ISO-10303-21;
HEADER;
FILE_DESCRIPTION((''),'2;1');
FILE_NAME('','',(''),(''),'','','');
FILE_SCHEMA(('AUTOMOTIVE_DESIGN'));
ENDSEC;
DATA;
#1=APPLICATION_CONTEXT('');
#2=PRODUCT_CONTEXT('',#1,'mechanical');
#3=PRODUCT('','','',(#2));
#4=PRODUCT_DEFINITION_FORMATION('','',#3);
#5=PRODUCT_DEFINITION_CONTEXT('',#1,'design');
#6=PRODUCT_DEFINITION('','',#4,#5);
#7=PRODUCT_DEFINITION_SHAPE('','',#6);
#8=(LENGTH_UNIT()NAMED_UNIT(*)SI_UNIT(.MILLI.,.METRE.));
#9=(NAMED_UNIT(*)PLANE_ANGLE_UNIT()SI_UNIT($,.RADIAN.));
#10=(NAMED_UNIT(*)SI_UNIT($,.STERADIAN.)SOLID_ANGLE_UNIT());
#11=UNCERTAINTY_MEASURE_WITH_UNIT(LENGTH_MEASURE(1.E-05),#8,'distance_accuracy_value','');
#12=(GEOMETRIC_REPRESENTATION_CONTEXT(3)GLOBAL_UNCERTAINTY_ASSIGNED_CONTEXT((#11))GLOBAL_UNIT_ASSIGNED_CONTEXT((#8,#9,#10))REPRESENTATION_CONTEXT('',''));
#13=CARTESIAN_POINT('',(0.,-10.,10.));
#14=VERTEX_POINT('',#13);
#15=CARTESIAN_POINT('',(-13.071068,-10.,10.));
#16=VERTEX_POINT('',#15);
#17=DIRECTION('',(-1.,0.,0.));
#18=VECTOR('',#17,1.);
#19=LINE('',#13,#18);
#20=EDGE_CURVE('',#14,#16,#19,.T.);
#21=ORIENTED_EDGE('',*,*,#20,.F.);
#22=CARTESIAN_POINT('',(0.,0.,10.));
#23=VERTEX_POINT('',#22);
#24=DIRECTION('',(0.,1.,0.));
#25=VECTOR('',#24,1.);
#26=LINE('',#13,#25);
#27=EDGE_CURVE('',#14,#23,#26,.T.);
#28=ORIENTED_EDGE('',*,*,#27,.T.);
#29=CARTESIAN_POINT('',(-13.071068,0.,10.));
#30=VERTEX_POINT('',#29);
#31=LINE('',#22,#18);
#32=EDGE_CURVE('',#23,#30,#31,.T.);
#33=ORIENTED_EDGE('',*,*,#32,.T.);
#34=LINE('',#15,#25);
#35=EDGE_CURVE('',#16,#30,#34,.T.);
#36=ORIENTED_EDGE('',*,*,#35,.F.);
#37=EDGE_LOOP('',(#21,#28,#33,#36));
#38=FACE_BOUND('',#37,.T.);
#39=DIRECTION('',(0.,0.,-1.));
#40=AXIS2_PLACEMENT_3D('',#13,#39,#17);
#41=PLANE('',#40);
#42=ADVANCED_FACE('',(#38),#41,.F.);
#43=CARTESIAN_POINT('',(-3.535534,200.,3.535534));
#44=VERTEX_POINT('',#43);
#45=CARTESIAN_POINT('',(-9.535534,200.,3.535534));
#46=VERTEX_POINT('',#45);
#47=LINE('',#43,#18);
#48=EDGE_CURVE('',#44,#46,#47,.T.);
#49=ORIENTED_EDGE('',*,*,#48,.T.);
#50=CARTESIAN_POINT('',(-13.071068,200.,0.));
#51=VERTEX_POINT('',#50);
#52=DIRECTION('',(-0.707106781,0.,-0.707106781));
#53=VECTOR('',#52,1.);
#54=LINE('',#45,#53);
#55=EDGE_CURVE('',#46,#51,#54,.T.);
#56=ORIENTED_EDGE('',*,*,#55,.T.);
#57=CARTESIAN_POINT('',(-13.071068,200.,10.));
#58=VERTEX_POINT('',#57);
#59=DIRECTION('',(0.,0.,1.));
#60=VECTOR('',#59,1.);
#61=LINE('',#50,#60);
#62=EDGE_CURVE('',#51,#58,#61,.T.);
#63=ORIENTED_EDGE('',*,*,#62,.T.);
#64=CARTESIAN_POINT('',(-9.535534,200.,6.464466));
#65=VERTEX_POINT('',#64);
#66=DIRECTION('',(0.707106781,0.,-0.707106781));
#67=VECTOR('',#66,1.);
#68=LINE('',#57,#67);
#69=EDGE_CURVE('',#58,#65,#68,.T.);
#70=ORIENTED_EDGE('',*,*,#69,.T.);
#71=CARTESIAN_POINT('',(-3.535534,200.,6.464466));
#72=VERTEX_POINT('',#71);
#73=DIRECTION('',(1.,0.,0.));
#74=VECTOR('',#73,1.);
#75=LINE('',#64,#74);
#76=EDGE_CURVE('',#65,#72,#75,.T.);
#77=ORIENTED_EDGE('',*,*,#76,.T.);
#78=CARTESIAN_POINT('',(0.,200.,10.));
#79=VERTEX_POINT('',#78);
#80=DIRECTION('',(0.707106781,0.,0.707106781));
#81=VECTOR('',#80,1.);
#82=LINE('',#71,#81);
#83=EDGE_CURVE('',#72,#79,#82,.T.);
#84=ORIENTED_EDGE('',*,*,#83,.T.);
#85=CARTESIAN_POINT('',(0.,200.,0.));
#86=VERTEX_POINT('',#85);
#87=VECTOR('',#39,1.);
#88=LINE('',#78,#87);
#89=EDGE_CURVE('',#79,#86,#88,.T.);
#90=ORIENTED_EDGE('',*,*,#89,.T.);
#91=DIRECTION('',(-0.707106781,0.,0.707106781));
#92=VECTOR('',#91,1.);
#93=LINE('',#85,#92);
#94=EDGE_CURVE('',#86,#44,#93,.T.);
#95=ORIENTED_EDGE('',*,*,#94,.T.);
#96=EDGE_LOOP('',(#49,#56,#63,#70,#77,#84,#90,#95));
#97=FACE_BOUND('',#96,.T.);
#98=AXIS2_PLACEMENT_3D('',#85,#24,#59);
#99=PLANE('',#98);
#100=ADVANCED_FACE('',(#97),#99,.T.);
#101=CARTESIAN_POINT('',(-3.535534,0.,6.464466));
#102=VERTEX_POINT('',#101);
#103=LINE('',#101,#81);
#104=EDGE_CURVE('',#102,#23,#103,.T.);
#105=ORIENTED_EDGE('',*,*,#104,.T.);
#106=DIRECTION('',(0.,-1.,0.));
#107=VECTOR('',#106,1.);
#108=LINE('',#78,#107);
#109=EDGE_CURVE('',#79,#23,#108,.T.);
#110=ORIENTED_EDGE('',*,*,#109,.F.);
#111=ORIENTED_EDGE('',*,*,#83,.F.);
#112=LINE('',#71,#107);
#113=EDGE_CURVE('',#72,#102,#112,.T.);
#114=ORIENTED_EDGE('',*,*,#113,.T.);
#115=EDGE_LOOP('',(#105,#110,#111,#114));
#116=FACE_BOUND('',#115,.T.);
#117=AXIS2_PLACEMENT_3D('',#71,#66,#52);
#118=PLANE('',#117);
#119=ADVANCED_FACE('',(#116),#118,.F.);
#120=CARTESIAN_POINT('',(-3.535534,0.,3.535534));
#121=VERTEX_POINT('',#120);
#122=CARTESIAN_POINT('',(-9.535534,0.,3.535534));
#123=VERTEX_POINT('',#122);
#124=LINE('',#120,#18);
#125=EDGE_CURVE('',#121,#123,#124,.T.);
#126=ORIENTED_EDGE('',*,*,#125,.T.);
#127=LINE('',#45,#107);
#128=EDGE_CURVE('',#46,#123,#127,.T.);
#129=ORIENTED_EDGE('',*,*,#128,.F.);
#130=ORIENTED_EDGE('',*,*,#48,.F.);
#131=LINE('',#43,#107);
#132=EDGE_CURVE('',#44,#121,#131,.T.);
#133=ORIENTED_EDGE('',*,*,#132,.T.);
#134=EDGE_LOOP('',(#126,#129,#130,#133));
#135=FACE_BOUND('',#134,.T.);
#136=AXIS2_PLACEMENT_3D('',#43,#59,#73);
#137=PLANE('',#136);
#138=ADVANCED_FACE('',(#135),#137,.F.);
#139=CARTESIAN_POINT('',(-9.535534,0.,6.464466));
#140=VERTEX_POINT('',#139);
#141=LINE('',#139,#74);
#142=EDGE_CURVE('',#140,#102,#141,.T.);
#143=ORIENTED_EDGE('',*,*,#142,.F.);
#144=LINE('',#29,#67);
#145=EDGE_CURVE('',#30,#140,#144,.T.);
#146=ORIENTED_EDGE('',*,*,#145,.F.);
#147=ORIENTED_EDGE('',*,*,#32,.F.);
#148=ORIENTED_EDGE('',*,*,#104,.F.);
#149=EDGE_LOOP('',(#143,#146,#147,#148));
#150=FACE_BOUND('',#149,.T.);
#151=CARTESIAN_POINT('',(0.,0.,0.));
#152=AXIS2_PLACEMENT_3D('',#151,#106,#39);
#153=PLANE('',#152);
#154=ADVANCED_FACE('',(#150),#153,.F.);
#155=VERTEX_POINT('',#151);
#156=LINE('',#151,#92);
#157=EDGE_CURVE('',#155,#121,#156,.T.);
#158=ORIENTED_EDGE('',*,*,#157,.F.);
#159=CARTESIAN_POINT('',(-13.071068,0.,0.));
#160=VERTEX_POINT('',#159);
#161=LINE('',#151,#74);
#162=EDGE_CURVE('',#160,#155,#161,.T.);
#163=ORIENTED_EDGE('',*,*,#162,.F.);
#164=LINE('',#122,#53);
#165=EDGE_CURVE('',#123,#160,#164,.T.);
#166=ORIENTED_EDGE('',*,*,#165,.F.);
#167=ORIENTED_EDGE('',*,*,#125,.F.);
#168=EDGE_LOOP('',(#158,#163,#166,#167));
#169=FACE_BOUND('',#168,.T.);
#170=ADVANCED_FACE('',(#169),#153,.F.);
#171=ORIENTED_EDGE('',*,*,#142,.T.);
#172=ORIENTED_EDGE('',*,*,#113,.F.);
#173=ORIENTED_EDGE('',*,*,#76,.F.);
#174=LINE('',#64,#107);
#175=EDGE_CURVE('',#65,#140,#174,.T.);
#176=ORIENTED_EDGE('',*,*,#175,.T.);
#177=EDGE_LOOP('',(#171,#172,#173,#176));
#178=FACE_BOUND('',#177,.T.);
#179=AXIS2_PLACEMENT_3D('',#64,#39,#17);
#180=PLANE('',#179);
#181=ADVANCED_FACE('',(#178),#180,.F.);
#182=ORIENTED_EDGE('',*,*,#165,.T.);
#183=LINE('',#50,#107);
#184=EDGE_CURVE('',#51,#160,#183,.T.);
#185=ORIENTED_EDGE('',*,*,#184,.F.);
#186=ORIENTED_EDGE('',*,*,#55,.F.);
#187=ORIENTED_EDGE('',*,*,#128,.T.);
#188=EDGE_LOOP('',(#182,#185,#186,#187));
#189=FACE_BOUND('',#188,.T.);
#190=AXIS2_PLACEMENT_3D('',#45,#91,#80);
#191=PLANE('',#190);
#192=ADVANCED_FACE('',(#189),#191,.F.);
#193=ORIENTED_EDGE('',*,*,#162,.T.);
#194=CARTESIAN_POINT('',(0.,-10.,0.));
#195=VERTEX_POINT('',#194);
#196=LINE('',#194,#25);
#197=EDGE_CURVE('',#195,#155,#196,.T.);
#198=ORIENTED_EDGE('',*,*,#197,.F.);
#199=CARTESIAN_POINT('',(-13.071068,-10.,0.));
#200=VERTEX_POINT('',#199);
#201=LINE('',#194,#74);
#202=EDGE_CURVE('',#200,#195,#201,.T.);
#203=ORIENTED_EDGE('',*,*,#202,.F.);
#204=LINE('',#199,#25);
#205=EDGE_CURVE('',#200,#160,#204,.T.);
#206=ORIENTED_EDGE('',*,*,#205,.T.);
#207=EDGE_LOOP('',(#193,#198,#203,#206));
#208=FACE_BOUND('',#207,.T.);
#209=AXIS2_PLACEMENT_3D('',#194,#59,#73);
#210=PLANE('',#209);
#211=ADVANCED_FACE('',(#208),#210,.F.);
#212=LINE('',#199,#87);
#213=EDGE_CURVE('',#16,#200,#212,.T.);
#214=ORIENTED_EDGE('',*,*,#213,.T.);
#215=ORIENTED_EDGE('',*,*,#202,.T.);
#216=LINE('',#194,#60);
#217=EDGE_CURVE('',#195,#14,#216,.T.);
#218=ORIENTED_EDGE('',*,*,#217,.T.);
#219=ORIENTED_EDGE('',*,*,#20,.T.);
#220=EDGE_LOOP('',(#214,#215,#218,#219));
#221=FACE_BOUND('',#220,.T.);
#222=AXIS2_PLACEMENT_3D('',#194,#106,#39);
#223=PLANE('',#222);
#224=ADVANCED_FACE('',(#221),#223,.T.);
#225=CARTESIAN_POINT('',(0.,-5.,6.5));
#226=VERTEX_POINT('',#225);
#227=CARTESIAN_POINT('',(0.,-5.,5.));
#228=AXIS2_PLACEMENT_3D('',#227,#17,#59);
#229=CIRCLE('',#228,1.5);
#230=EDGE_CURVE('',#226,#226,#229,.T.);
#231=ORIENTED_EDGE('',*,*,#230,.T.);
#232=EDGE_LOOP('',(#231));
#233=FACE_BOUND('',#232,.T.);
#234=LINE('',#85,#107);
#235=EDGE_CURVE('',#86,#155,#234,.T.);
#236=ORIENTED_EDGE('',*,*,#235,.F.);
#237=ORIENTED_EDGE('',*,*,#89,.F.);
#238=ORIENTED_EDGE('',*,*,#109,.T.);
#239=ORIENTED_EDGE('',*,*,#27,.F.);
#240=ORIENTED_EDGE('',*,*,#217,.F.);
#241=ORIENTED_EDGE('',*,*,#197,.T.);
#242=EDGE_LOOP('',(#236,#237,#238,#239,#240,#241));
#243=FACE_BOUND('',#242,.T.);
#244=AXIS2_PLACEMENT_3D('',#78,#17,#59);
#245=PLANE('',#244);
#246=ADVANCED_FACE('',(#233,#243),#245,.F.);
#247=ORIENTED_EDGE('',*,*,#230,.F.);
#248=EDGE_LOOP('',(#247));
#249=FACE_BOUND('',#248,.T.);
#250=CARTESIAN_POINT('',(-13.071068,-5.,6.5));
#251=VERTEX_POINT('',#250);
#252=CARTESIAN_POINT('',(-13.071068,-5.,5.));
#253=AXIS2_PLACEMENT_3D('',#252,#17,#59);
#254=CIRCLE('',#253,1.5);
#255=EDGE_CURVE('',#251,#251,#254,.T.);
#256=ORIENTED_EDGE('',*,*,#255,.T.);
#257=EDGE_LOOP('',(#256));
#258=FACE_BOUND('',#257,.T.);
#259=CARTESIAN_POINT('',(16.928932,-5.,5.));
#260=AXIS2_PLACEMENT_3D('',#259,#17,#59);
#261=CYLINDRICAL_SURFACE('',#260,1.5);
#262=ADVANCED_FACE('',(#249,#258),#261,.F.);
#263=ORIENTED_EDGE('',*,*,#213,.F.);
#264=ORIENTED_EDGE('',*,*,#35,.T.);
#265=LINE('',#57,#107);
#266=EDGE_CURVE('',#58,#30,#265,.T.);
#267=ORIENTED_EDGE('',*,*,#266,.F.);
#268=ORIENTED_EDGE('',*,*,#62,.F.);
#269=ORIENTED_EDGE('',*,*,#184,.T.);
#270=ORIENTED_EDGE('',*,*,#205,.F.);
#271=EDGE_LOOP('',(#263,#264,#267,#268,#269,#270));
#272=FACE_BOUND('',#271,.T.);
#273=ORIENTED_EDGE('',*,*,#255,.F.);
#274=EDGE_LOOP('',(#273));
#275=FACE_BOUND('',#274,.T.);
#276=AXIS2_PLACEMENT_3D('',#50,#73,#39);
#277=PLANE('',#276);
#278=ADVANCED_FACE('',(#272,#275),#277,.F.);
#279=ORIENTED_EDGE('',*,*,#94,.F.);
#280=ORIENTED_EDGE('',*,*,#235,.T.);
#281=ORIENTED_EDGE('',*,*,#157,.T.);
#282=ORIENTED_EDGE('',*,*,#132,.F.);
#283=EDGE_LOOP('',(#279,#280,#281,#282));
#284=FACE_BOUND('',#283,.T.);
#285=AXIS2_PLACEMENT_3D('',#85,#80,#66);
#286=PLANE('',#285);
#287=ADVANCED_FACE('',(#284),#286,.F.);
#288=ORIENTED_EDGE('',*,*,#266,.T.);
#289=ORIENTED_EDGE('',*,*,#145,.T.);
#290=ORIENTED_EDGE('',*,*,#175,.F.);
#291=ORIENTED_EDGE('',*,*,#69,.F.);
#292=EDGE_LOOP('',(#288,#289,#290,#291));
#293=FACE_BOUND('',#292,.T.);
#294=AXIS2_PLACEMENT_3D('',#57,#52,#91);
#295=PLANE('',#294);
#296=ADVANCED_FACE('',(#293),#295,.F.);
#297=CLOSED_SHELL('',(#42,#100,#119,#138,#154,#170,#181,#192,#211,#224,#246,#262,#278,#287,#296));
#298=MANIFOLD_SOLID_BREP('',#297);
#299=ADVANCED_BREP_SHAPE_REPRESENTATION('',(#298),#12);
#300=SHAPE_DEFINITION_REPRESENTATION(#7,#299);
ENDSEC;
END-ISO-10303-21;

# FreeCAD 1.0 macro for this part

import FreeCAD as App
import Part
import Sketcher

doc = App.newDocument("Part")
body = doc.addObject("PartDesign::Body", "Body")

# Sketch on XZ plane
sketch1 = body.newObject("Sketcher::SketchObject", "Sketch")
sketch1.AttachmentSupport = (doc.getObject("XZ_Plane"), [""])
sketch1.MapMode = "FlatFace"
sketch1.addGeometry(Part.LineSegment(App.Vector(0, 0, 0), App.Vector(-4, 4, 0)), False)
sketch1.addGeometry(Part.LineSegment(App.Vector(-4, 4, 0), App.Vector(-10, 4, 0)), False)
sketch1.addGeometry(Part.LineSegment(App.Vector(-10, 4, 0), App.Vector(-13, 0, 0)), False)
sketch1.addGeometry(Part.LineSegment(App.Vector(-13, 0, 0), App.Vector(-13, 10, 0)), False)
sketch1.addGeometry(Part.LineSegment(App.Vector(-13, 10, 0), App.Vector(-10, 6, 0)), False)
sketch1.addGeometry(Part.LineSegment(App.Vector(-10, 6, 0), App.Vector(-4, 6, 0)), False)
sketch1.addGeometry(Part.LineSegment(App.Vector(-4, 6, 0), App.Vector(0, 10, 0)), False)
sketch1.addGeometry(Part.LineSegment(App.Vector(0, 10, 0), App.Vector(0, 0, 0)), False)
sketch1.addConstraint(Sketcher.Constraint("Coincident", 0, 2, 1, 1))
sketch1.addConstraint(Sketcher.Constraint("Coincident", 1, 2, 2, 1))
sketch1.addConstraint(Sketcher.Constraint("Coincident", 2, 2, 3, 1))
sketch1.addConstraint(Sketcher.Constraint("Coincident", 3, 2, 4, 1))
sketch1.addConstraint(Sketcher.Constraint("Coincident", 4, 2, 5, 1))
sketch1.addConstraint(Sketcher.Constraint("Coincident", 5, 2, 6, 1))
sketch1.addConstraint(Sketcher.Constraint("Coincident", 6, 2, 7, 1))
sketch1.addConstraint(Sketcher.Constraint("Coincident", 7, 2, 0, 1))
sketch1.addConstraint(Sketcher.Constraint("Horizontal", 1))
sketch1.addConstraint(Sketcher.Constraint("Vertical", 3))
sketch1.addConstraint(Sketcher.Constraint("Horizontal", 5))
sketch1.addConstraint(Sketcher.Constraint("Vertical", 7))
sketch1.addConstraint(Sketcher.Constraint("Coincident", 7, 2, -1, 1))
sketch1.addConstraint(Sketcher.Constraint("PointOnObject", 2, 2, -1))
sketch1.addConstraint(Sketcher.Constraint("Perpendicular", 0, 2))
sketch1.addConstraint(Sketcher.Constraint("Perpendicular", 2, 4))
sketch1.addConstraint(Sketcher.Constraint("Perpendicular", 4, 6))
sketch1.addConstraint(Sketcher.Constraint("Horizontal", 3, 2, 6, 2))
sketch1.addConstraint(Sketcher.Constraint("Vertical", 1, 2, 4, 2))
sketch1.addConstraint(Sketcher.Constraint("Vertical", 0, 2, 5, 2))
sketch1.addConstraint(Sketcher.Constraint("DistanceX", 1, 2, 1, 1, 6.0))
sketch1.addConstraint(Sketcher.Constraint("DistanceY", 3, 1, 3, 2, 10.0))
sketch1.addConstraint(Sketcher.Constraint("Distance", 0, 5.0))
pad1 = body.newObject("PartDesign::Pad", "Pad")
pad1.Profile = sketch1
pad1.Length = 200
pad1.Reversed = True

# Sketch on XZ plane
sketch2 = body.newObject("Sketcher::SketchObject", "Sketch001")
sketch2.AttachmentSupport = (doc.getObject("XZ_Plane"), [""])
sketch2.MapMode = "FlatFace"
sketch2.addGeometry(Part.LineSegment(App.Vector(-13, 10, 0), App.Vector(-13, 0, 0)), False)
sketch2.addGeometry(Part.LineSegment(App.Vector(-13, 0, 0), App.Vector(0, 0, 0)), False)
sketch2.addGeometry(Part.LineSegment(App.Vector(0, 0, 0), App.Vector(0, 10, 0)), False)
sketch2.addGeometry(Part.LineSegment(App.Vector(0, 10, 0), App.Vector(-13, 10, 0)), False)
sketch2.addConstraint(Sketcher.Constraint("Coincident", 0, 2, 1, 1))
sketch2.addConstraint(Sketcher.Constraint("Coincident", 1, 2, 2, 1))
sketch2.addConstraint(Sketcher.Constraint("Coincident", 2, 2, 3, 1))
sketch2.addConstraint(Sketcher.Constraint("Coincident", 3, 2, 0, 1))
sketch2.addConstraint(Sketcher.Constraint("Vertical", 0))
sketch2.addConstraint(Sketcher.Constraint("Horizontal", 1))
sketch2.addConstraint(Sketcher.Constraint("Vertical", 2))
sketch2.addConstraint(Sketcher.Constraint("Horizontal", 3))
sketch2.addConstraint(Sketcher.Constraint("Coincident", 1, 2, -1, 1))
sketch2.addConstraint(Sketcher.Constraint("DistanceY", 0, 2, 0, 1, 10.0))
sketch2.addConstraint(Sketcher.Constraint("DistanceX", 1, 1, 1, 2, 13.071068))
pad2 = body.newObject("PartDesign::Pad", "Pad001")
pad2.Profile = sketch2
pad2.Length = 10

# Sketch on YZ plane
sketch3 = body.newObject("Sketcher::SketchObject", "Sketch002")
sketch3.AttachmentSupport = (doc.getObject("YZ_Plane"), [""])
sketch3.MapMode = "FlatFace"
sketch3.AttachmentOffset = App.Placement(App.Vector(0, 0, -13.071068), App.Rotation())
sketch3.addGeometry(Part.Circle(App.Vector(-5, 5, 0), App.Vector(0, 0, 1), 1.5), False)
sketch3.addConstraint(Sketcher.Constraint("Diameter", 0, 3.0))
sketch3.addConstraint(Sketcher.Constraint("DistanceX", 0, 3, -1, 1, 5.0))
sketch3.addConstraint(Sketcher.Constraint("DistanceY", -1, 1, 0, 3, 5.0))
pocket1 = body.newObject("PartDesign::Pocket", "Pocket")
pocket1.Profile = sketch3
pocket1.Length = 30
pocket1.Reversed = True

doc.recompute()
